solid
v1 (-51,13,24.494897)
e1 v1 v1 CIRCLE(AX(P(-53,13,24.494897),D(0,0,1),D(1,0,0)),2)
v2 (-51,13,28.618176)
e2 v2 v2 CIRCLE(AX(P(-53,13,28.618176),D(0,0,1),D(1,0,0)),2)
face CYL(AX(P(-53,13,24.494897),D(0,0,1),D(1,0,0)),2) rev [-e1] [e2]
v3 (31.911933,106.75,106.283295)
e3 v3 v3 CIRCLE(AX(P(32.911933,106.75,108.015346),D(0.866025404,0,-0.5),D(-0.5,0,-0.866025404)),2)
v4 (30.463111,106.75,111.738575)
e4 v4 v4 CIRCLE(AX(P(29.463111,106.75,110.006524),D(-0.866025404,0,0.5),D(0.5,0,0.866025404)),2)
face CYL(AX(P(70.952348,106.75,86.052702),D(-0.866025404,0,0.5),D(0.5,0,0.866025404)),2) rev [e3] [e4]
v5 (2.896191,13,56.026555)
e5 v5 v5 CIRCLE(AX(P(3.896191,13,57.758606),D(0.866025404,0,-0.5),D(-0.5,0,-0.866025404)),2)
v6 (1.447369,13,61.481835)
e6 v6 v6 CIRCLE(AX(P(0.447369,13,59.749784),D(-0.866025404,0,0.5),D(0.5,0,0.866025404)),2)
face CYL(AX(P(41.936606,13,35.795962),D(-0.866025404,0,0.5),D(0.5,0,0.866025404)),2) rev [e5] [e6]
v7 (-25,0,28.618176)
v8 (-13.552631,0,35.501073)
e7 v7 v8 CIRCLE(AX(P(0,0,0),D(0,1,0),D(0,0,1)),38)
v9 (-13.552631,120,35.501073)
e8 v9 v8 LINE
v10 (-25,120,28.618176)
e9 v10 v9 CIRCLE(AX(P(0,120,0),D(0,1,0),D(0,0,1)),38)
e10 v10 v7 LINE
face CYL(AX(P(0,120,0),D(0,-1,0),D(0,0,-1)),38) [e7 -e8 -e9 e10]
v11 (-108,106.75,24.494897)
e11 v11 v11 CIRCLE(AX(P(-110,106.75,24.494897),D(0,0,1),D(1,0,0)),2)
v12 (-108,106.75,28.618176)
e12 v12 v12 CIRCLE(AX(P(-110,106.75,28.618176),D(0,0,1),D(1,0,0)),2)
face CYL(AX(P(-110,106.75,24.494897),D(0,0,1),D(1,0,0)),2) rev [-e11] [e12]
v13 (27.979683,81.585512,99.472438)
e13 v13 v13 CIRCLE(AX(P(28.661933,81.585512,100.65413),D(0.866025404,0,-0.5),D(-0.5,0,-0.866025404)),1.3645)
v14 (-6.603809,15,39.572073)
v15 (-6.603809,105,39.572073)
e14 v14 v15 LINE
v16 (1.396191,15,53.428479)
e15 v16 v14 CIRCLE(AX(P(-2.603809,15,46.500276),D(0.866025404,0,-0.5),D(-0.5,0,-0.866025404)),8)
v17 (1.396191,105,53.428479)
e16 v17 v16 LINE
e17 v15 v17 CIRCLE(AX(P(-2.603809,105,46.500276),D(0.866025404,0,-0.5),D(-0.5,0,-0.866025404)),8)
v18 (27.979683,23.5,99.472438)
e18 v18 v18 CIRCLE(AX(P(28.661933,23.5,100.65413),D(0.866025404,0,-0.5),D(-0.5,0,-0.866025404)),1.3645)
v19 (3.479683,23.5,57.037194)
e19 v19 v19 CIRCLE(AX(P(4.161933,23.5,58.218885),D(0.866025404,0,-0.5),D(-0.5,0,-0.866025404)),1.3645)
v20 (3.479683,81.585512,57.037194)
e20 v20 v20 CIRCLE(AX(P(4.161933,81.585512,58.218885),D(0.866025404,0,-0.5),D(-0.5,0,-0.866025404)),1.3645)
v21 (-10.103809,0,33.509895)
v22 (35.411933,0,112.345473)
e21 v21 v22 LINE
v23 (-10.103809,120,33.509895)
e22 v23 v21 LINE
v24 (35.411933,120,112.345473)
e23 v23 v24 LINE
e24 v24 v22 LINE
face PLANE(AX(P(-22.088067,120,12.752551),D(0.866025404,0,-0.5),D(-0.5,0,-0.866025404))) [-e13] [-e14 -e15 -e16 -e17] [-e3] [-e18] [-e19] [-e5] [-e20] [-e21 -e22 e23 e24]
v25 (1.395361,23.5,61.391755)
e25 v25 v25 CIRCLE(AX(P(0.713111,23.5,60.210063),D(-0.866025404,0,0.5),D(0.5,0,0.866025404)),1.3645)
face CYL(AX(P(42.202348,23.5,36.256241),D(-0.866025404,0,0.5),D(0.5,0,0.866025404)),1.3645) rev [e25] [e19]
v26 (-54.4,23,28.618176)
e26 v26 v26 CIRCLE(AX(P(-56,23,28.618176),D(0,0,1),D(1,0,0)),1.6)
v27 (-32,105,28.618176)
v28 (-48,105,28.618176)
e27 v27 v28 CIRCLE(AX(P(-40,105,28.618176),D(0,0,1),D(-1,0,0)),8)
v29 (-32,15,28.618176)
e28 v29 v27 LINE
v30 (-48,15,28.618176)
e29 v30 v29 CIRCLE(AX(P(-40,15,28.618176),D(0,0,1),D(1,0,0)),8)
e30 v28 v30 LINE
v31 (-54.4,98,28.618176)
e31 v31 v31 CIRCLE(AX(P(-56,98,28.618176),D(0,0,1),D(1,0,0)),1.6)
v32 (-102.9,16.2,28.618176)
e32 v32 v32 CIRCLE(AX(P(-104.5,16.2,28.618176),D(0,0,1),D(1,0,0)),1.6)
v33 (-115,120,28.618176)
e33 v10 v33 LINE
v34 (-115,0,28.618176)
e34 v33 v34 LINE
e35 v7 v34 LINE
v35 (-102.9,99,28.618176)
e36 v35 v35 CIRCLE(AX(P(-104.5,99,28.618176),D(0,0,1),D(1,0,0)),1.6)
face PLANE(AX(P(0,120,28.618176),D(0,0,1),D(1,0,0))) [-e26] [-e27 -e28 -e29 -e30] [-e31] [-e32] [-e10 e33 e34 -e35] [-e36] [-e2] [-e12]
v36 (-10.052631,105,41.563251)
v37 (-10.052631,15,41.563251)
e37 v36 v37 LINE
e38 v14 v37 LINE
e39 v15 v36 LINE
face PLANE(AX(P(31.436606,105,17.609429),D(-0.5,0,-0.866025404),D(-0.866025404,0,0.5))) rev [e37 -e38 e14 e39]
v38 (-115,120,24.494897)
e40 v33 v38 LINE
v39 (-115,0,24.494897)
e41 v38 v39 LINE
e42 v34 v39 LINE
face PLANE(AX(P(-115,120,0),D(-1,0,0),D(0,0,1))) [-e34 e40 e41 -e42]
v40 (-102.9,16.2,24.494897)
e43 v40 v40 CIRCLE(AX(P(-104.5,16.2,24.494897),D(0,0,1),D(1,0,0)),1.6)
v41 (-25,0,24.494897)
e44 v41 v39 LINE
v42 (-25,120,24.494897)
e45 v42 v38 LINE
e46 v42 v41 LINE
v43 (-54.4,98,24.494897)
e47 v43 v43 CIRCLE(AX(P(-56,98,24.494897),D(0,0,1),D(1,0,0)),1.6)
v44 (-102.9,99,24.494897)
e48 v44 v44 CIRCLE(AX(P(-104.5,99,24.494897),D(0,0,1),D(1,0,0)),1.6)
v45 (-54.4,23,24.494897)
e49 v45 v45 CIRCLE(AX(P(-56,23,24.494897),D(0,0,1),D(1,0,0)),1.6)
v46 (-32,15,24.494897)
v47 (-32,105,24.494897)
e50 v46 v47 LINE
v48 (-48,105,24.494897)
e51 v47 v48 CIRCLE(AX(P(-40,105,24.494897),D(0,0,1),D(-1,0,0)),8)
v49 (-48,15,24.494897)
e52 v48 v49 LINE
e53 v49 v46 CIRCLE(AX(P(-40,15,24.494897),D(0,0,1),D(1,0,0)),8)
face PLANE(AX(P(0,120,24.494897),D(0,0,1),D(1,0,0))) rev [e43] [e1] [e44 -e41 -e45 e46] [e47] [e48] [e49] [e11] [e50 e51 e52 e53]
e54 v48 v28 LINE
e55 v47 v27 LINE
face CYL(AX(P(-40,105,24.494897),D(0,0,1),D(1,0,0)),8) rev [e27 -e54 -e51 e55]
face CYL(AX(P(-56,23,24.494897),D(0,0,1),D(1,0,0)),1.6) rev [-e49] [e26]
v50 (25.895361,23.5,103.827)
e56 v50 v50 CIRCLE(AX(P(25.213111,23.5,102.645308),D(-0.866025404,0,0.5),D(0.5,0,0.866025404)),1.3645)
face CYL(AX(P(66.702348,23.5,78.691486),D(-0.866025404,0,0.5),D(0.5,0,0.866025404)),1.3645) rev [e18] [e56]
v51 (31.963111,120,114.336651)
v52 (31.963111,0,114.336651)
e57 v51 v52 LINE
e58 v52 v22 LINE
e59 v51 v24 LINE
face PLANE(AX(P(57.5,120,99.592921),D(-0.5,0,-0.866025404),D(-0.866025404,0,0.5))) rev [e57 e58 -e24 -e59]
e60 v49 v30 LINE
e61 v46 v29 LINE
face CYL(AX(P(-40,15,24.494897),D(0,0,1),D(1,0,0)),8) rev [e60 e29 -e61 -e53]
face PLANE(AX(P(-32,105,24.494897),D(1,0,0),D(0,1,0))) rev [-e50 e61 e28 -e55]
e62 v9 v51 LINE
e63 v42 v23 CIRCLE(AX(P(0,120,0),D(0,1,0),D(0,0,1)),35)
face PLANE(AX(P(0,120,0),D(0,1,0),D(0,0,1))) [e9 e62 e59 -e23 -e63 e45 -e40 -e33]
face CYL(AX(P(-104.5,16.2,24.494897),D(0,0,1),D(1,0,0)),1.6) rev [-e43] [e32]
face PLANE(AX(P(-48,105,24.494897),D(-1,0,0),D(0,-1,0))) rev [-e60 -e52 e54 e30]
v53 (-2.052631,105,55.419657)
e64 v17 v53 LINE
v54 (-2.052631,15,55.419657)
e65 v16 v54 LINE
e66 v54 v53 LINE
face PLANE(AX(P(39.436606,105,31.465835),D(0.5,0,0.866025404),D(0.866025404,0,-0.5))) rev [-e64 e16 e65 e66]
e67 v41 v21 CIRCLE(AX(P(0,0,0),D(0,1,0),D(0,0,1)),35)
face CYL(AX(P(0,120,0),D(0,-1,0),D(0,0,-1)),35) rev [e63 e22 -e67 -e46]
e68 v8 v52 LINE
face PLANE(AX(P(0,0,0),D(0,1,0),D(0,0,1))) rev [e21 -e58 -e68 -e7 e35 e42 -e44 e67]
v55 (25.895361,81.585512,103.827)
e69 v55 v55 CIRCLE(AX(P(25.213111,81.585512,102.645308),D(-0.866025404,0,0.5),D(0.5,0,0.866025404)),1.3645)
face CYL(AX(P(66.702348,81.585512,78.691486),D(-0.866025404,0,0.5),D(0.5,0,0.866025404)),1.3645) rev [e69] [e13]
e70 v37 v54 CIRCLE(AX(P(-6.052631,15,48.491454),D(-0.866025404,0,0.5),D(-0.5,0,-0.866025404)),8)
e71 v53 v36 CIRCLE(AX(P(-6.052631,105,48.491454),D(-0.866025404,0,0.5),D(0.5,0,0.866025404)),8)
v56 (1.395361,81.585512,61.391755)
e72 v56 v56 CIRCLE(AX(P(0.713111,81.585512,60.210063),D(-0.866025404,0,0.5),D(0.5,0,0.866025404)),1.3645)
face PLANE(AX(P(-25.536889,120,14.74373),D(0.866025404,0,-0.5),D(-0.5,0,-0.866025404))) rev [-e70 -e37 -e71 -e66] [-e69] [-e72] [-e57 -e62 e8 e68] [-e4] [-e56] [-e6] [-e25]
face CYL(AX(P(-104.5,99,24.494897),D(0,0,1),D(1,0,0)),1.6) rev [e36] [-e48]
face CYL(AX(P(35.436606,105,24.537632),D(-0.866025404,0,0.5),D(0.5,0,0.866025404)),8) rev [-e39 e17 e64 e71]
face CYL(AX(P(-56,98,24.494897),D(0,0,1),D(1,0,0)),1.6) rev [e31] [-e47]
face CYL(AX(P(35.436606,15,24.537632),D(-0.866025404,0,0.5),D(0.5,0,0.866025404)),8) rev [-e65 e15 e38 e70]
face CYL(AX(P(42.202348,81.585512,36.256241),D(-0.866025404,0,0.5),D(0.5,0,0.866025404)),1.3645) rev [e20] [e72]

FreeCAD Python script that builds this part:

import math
import FreeCAD as App
import Part
import Sketcher
Q = App.Units.Quantity

doc = App.newDocument("Part")
params = doc.addObject("Spreadsheet::Sheet", "Params")
for row, (alias, value) in enumerate([
    ("sketch1_radius", "38 mm"),
    ("sketch1_radius2", "35 mm"),
    ("sketch1_width", "90 mm"),
    ("pad1_length", "120 mm"),
    ("sketch2_radius", "8 mm"),
    ("sketch2_height", "90 mm"),
    ("sketch3_radius", "8 mm"),
    ("sketch3_height", "90 mm"),
    ("sketch4_diameter", "4 mm"),
    ("sketch5_diameter", "4 mm"),
    ("sketch7_diameter", "3.2 mm"),
    ("sketch8_diameter", "4 mm"),
    ("sketch9_diameter", "4 mm"),
], start=1):
    params.set(f"A{row}", alias)
    params.set(f"B{row}", "=" + value)
    params.setAlias(f"B{row}", alias)

body = doc.addObject("PartDesign::Body", "Body")

sketch1 = body.newObject("Sketcher::SketchObject", "Sketch")
sketch1.AttachmentSupport = (doc.getObject("XZ_Plane"), [""])
sketch1.MapMode = "FlatFace"
sketch1.addGeometry(Part.LineSegment(App.Vector(-115, 24.5, 0), App.Vector(-115, 28.6, 0)), False)
sketch1.addGeometry(Part.LineSegment(App.Vector(-115, 28.6, 0), App.Vector(-25, 28.6, 0)), False)
sketch1.addGeometry(Part.ArcOfCircle(Part.Circle(App.Vector(0, 0, 0), App.Vector(0, 0, 1), 38), math.radians(111), math.radians(131)), False)
sketch1.addGeometry(Part.LineSegment(App.Vector(-13.6, 35.5, 0), App.Vector(32, 114.3, 0)), False)
sketch1.addGeometry(Part.LineSegment(App.Vector(32, 114.3, 0), App.Vector(35.4, 112.3, 0)), False)
sketch1.addGeometry(Part.LineSegment(App.Vector(35.4, 112.3, 0), App.Vector(-8, 37.1, 0)), False)
sketch1.addGeometry(Part.LineSegment(App.Vector(-8, 37.1, 0), App.Vector(-10.1, 33.5, 0)), False)
sketch1.addGeometry(Part.ArcOfCircle(Part.Circle(App.Vector(0, 0, 0), App.Vector(0, 0, 1), 35), math.radians(107), math.radians(136)), False)
sketch1.addGeometry(Part.LineSegment(App.Vector(-25, 24.5, 0), App.Vector(-115, 24.5, 0)), False)
sketch1.addConstraint(Sketcher.Constraint("Coincident", 0, 2, 1, 1))
sketch1.addConstraint(Sketcher.Constraint("Coincident", 1, 2, 2, 2))
sketch1.addConstraint(Sketcher.Constraint("Coincident", 2, 1, 3, 1))
sketch1.addConstraint(Sketcher.Constraint("Coincident", 3, 2, 4, 1))
sketch1.addConstraint(Sketcher.Constraint("Coincident", 4, 2, 5, 1))
sketch1.addConstraint(Sketcher.Constraint("Coincident", 5, 2, 6, 1))
sketch1.addConstraint(Sketcher.Constraint("Coincident", 6, 2, 7, 1))
sketch1.addConstraint(Sketcher.Constraint("Coincident", 7, 2, 8, 1))
sketch1.addConstraint(Sketcher.Constraint("Coincident", 8, 2, 0, 1))
sketch1.addConstraint(Sketcher.Constraint("Vertical", 0))
sketch1.addConstraint(Sketcher.Constraint("Horizontal", 1))
sketch1.addConstraint(Sketcher.Constraint("Horizontal", 8))
sketch1.addConstraint(Sketcher.Constraint("Coincident", 2, 3, -1, 1))
sketch1.addConstraint(Sketcher.Constraint("Coincident", 7, 3, -1, 1))
sketch1.addConstraint(Sketcher.Constraint("Perpendicular", 3, 4))
sketch1.addConstraint(Sketcher.Constraint("Perpendicular", 4, 5))
sketch1.addConstraint(Sketcher.Constraint("Parallel", 5, 6))
sketch1.addConstraint(Sketcher.Constraint("Vertical", 1, 2, 7, 2))
sketch1.addConstraint(Sketcher.Constraint("Radius", 2, 38.0))
sketch1.addConstraint(Sketcher.Constraint("Radius", 7, 35.0))
sketch1.addConstraint(Sketcher.Constraint("DistanceX", 1, 1, 1, 2, 90.0))
sketch1.addConstraint(Sketcher.Constraint("Angle", 3, Q("60 deg")))
sketch1.addConstraint(Sketcher.Constraint("DistanceX", 0, 2, -1, 1, 115.0))
sketch1.addConstraint(Sketcher.Constraint("DistanceY", 2, 1, 4, 2, 76.8444))
sketch1.addConstraint(Sketcher.Constraint("DistanceY", 1, 2, 5, 2, 8.529402))
sketch1.addConstraint(Sketcher.Constraint("Distance", 5, 86.83105))
sketch1.addConstraint(Sketcher.Constraint("DistanceX", -1, 1, 3, 2, 31.963111))
sketch1.setExpression("Constraints[18]", "Params.sketch1_radius")
sketch1.setExpression("Constraints[19]", "Params.sketch1_radius2")
sketch1.setExpression("Constraints[20]", "Params.sketch1_width")
pad1 = body.newObject("PartDesign::Pad", "Pad")
pad1.Profile = sketch1
pad1.setExpression("Length", "Params.pad1_length")
pad1.Reversed = True

sketch2 = body.newObject("Sketcher::SketchObject", "Sketch001")
sketch2.AttachmentSupport = (doc.getObject("XY_Plane"), [""])
sketch2.MapMode = "FlatFace"
sketch2.AttachmentOffset = App.Placement(App.Vector(0, 0, 28.618176), App.Rotation())
sketch2.addGeometry(Part.LineSegment(App.Vector(-48, 105, 0), App.Vector(-48, 15, 0)), False)
sketch2.addGeometry(Part.ArcOfCircle(Part.Circle(App.Vector(-40, 15, 0), App.Vector(0, 0, 1), 8), math.radians(180), math.radians(360)), False)
sketch2.addGeometry(Part.LineSegment(App.Vector(-32, 15, 0), App.Vector(-32, 105, 0)), False)
sketch2.addGeometry(Part.ArcOfCircle(Part.Circle(App.Vector(-40, 105, 0), App.Vector(0, 0, 1), 8), math.radians(0), math.radians(180)), False)
sketch2.addConstraint(Sketcher.Constraint("Tangent", 0, 2, 1, 1))
sketch2.addConstraint(Sketcher.Constraint("Tangent", 1, 2, 2, 1))
sketch2.addConstraint(Sketcher.Constraint("Tangent", 2, 2, 3, 1))
sketch2.addConstraint(Sketcher.Constraint("Tangent", 3, 2, 0, 1))
sketch2.addConstraint(Sketcher.Constraint("Vertical", 0))
sketch2.addConstraint(Sketcher.Constraint("Vertical", 2))
sketch2.addConstraint(Sketcher.Constraint("Radius", 1, 8.0))
sketch2.addConstraint(Sketcher.Constraint("DistanceY", 0, 2, 0, 1, 90.0))
sketch2.addConstraint(Sketcher.Constraint("DistanceX", 1, 3, -1, 1, 40.0))
sketch2.addConstraint(Sketcher.Constraint("DistanceY", -1, 1, 1, 3, 15.0))
sketch2.setExpression("Constraints[6]", "Params.sketch2_radius")
sketch2.setExpression("Constraints[7]", "Params.sketch2_height")
pocket1 = body.newObject("PartDesign::Pocket", "Pocket")
pocket1.Profile = sketch2
pocket1.Type = "ThroughAll"

sketch3 = body.newObject("Sketcher::SketchObject", "Sketch002")
sketch3.Placement = App.Placement(App.Vector(-25.536889, 0, 14.74373), App.Rotation(App.Vector(0.5, 0, 0.866025404), App.Vector(0, 1, 0), App.Vector(-0.866025404, 0, 0.5), "ZXY"))
sketch3.addGeometry(Part.LineSegment(App.Vector(47, 15, 0), App.Vector(47, 105, 0)), False)
sketch3.addGeometry(Part.ArcOfCircle(Part.Circle(App.Vector(39, 105, 0), App.Vector(0, 0, 1), 8), math.radians(0), math.radians(180)), False)
sketch3.addGeometry(Part.LineSegment(App.Vector(31, 105, 0), App.Vector(31, 15, 0)), False)
sketch3.addGeometry(Part.ArcOfCircle(Part.Circle(App.Vector(39, 15, 0), App.Vector(0, 0, 1), 8), math.radians(180), math.radians(360)), False)
sketch3.addConstraint(Sketcher.Constraint("Tangent", 0, 2, 1, 1))
sketch3.addConstraint(Sketcher.Constraint("Tangent", 1, 2, 2, 1))
sketch3.addConstraint(Sketcher.Constraint("Tangent", 2, 2, 3, 1))
sketch3.addConstraint(Sketcher.Constraint("Tangent", 3, 2, 0, 1))
sketch3.addConstraint(Sketcher.Constraint("Vertical", 0))
sketch3.addConstraint(Sketcher.Constraint("Vertical", 2))
sketch3.addConstraint(Sketcher.Constraint("Radius", 1, 8.0))
sketch3.addConstraint(Sketcher.Constraint("DistanceY", 0, 1, 0, 2, 90.0))
sketch3.addConstraint(Sketcher.Constraint("DistanceY", -1, 1, 1, 3, 105.0))
sketch3.addConstraint(Sketcher.Constraint("DistanceX", -1, 1, 1, 3, 38.968516))
sketch3.setExpression("Constraints[6]", "Params.sketch3_radius")
sketch3.setExpression("Constraints[7]", "Params.sketch3_height")
pocket2 = body.newObject("PartDesign::Pocket", "Pocket001")
pocket2.Profile = sketch3
pocket2.Type = "ThroughAll"

sketch4 = body.newObject("Sketcher::SketchObject", "Sketch003")
sketch4.AttachmentSupport = (doc.getObject("XY_Plane"), [""])
sketch4.MapMode = "FlatFace"
sketch4.AttachmentOffset = App.Placement(App.Vector(0, 0, 28.618176), App.Rotation())
sketch4.addGeometry(Part.Circle(App.Vector(-110, 106.8, 0), App.Vector(0, 0, 1), 2), False)
sketch4.addConstraint(Sketcher.Constraint("Diameter", 0, 4.0))
sketch4.addConstraint(Sketcher.Constraint("DistanceX", 0, 3, -1, 1, 110.0))
sketch4.addConstraint(Sketcher.Constraint("DistanceY", -1, 1, 0, 3, 106.75))
sketch4.setExpression("Constraints[0]", "Params.sketch4_diameter")
pocket3 = body.newObject("PartDesign::Pocket", "Pocket002")
pocket3.Profile = sketch4
pocket3.Type = "ThroughAll"

sketch5 = body.newObject("Sketcher::SketchObject", "Sketch004")
sketch5.Placement = App.Placement(App.Vector(-25.536889, 0, 14.74373), App.Rotation(App.Vector(0.5, 0, 0.866025404), App.Vector(0, 1, 0), App.Vector(-0.866025404, 0, 0.5), "ZXY"))
sketch5.addGeometry(Part.Circle(App.Vector(110, 106.8, 0), App.Vector(0, 0, 1), 2), False)
sketch5.addConstraint(Sketcher.Constraint("Diameter", 0, 4.0))
sketch5.addConstraint(Sketcher.Constraint("DistanceX", -1, 1, 0, 3, 110.0))
sketch5.addConstraint(Sketcher.Constraint("DistanceY", -1, 1, 0, 3, 106.75))
sketch5.setExpression("Constraints[0]", "Params.sketch5_diameter")
pocket4 = body.newObject("PartDesign::Pocket", "Pocket003")
pocket4.Profile = sketch5
pocket4.Type = "ThroughAll"

sketch6 = body.newObject("Sketcher::SketchObject", "Sketch005")
sketch6.Placement = App.Placement(App.Vector(-25.536889, 0, 14.74373), App.Rotation(App.Vector(0.5, 0, 0.866025404), App.Vector(0, 1, 0), App.Vector(-0.866025404, 0, 0.5), "ZXY"))
sketch6.addGeometry(Part.Circle(App.Vector(101.5, 23.5, 0), App.Vector(0, 0, 1), 1.4), False)
sketch6.addGeometry(Part.Circle(App.Vector(52.5, 23.5, 0), App.Vector(0, 0, 1), 1.4), False)
sketch6.addGeometry(Part.Circle(App.Vector(52.5, 81.6, 0), App.Vector(0, 0, 1), 1.4), False)
sketch6.addGeometry(Part.Circle(App.Vector(101.5, 81.6, 0), App.Vector(0, 0, 1), 1.4), False)
sketch6.addConstraint(Sketcher.Constraint("Equal", 0, 1))
sketch6.addConstraint(Sketcher.Constraint("Equal", 1, 2))
sketch6.addConstraint(Sketcher.Constraint("Equal", 2, 3))
sketch6.addConstraint(Sketcher.Constraint("Horizontal", 0, 3, 1, 3))
sketch6.addConstraint(Sketcher.Constraint("Horizontal", 2, 3, 3, 3))
sketch6.addConstraint(Sketcher.Constraint("Vertical", 1, 3, 2, 3))
sketch6.addConstraint(Sketcher.Constraint("Vertical", 0, 3, 3, 3))
sketch6.addConstraint(Sketcher.Constraint("Diameter", 0, 2.728999))
sketch6.addConstraint(Sketcher.Constraint("DistanceX", 1, 3, 0, 3, 49.0))
sketch6.addConstraint(Sketcher.Constraint("DistanceX", -1, 1, 0, 3, 101.5))
sketch6.addConstraint(Sketcher.Constraint("DistanceY", -1, 1, 0, 3, 23.5))
sketch6.addConstraint(Sketcher.Constraint("DistanceY", -1, 1, 2, 3, 81.585513))
pocket5 = body.newObject("PartDesign::Pocket", "Pocket004")
pocket5.Profile = sketch6
pocket5.Type = "ThroughAll"

sketch7 = body.newObject("Sketcher::SketchObject", "Sketch006")
sketch7.AttachmentSupport = (doc.getObject("XY_Plane"), [""])
sketch7.MapMode = "FlatFace"
sketch7.AttachmentOffset = App.Placement(App.Vector(0, 0, 28.618176), App.Rotation())
sketch7.addGeometry(Part.Circle(App.Vector(-56, 23, 0), App.Vector(0, 0, 1), 1.6), False)
sketch7.addGeometry(Part.Circle(App.Vector(-104.5, 16.2, 0), App.Vector(0, 0, 1), 1.6), False)
sketch7.addGeometry(Part.Circle(App.Vector(-56, 98, 0), App.Vector(0, 0, 1), 1.6), False)
sketch7.addGeometry(Part.Circle(App.Vector(-104.5, 99, 0), App.Vector(0, 0, 1), 1.6), False)
sketch7.addConstraint(Sketcher.Constraint("Equal", 0, 1))
sketch7.addConstraint(Sketcher.Constraint("Equal", 1, 2))
sketch7.addConstraint(Sketcher.Constraint("Equal", 2, 3))
sketch7.addConstraint(Sketcher.Constraint("Vertical", 0, 3, 2, 3))
sketch7.addConstraint(Sketcher.Constraint("Vertical", 1, 3, 3, 3))
sketch7.addConstraint(Sketcher.Constraint("Diameter", 0, 3.2))
sketch7.addConstraint(Sketcher.Constraint("DistanceX", 0, 3, -1, 1, 56.0))
sketch7.addConstraint(Sketcher.Constraint("DistanceY", -1, 1, 0, 3, 23.0))
sketch7.addConstraint(Sketcher.Constraint("DistanceY", -1, 1, 2, 3, 98.0))
sketch7.addConstraint(Sketcher.Constraint("DistanceY", -1, 1, 3, 3, 99.0))
sketch7.addConstraint(Sketcher.Constraint("DistanceX", 1, 3, -1, 1, 104.5))
sketch7.addConstraint(Sketcher.Constraint("DistanceY", -1, 1, 1, 3, 16.2))
sketch7.setExpression("Constraints[5]", "Params.sketch7_diameter")
pocket6 = body.newObject("PartDesign::Pocket", "Pocket005")
pocket6.Profile = sketch7
pocket6.Type = "ThroughAll"

sketch8 = body.newObject("Sketcher::SketchObject", "Sketch007")
sketch8.AttachmentSupport = (doc.getObject("XY_Plane"), [""])
sketch8.MapMode = "FlatFace"
sketch8.AttachmentOffset = App.Placement(App.Vector(0, 0, 28.618176), App.Rotation())
sketch8.addGeometry(Part.Circle(App.Vector(-53, 13, 0), App.Vector(0, 0, 1), 2), False)
sketch8.addConstraint(Sketcher.Constraint("Diameter", 0, 4.0))
sketch8.addConstraint(Sketcher.Constraint("DistanceX", 0, 3, -1, 1, 53.0))
sketch8.addConstraint(Sketcher.Constraint("DistanceY", -1, 1, 0, 3, 13.0))
sketch8.setExpression("Constraints[0]", "Params.sketch8_diameter")
pocket7 = body.newObject("PartDesign::Pocket", "Pocket006")
pocket7.Profile = sketch8
pocket7.Type = "ThroughAll"

sketch9 = body.newObject("Sketcher::SketchObject", "Sketch008")
sketch9.Placement = App.Placement(App.Vector(-25.536889, 0, 14.74373), App.Rotation(App.Vector(0.5, 0, 0.866025404), App.Vector(0, 1, 0), App.Vector(-0.866025404, 0, 0.5), "ZXY"))
sketch9.addGeometry(Part.Circle(App.Vector(52, 13, 0), App.Vector(0, 0, 1), 2), False)
sketch9.addConstraint(Sketcher.Constraint("Diameter", 0, 4.0))
sketch9.addConstraint(Sketcher.Constraint("DistanceY", -1, 1, 0, 3, 13.0))
sketch9.addConstraint(Sketcher.Constraint("DistanceX", -1, 1, 0, 3, 51.968516))
sketch9.setExpression("Constraints[0]", "Params.sketch9_diameter")
pocket8 = body.newObject("PartDesign::Pocket", "Pocket007")
pocket8.Profile = sketch9
pocket8.Type = "ThroughAll"

doc.recompute()
